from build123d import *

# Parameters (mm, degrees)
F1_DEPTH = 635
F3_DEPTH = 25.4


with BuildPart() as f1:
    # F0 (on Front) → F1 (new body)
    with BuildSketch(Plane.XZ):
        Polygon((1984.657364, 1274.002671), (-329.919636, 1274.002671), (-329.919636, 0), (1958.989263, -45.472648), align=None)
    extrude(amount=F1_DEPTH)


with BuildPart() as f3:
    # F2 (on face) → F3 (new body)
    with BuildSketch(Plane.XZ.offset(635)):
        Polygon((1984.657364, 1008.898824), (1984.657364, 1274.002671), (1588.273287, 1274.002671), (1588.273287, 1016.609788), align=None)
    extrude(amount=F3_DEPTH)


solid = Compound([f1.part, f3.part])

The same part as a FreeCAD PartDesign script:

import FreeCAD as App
import Part
import Sketcher
from FreeCAD import Vector
Q = App.Units.Quantity

doc = App.newDocument("Part")
body = doc.addObject("PartDesign::Body", "Body")

# Sketch on XZ plane
sketch1 = body.newObject("Sketcher::SketchObject", "Sketch")
sketch1.AttachmentSupport = (doc.getObject("XZ_Plane"), [""])
sketch1.MapMode = "FlatFace"
sketch1.addGeometry([
    Part.LineSegment(Vector(1984.657364, 1274.002671, 0), Vector(-329.919636, 1274.002671, 0)),
    Part.LineSegment(Vector(-329.919636, 1274.002671, 0), Vector(-329.919636, 0, 0)),
    Part.LineSegment(Vector(-329.919636, 0, 0), Vector(1958.989263, -45.472648, 0)),
    Part.LineSegment(Vector(1958.989263, -45.472648, 0), Vector(1984.657364, 1274.002671, 0)),
], False)
sketch1.addConstraint([
    Sketcher.Constraint("Coincident", 0, 2, 1, 1),
    Sketcher.Constraint("Coincident", 1, 2, 2, 1),
    Sketcher.Constraint("Coincident", 2, 2, 3, 1),
    Sketcher.Constraint("Coincident", 3, 2, 0, 1),
    Sketcher.Constraint("Horizontal", 0),
    Sketcher.Constraint("Vertical", 1),
    Sketcher.Constraint("PointOnObject", 1, 2, -1),
    Sketcher.Constraint("DistanceX", 0, 2, 0, 1, 2314.577),
    Sketcher.Constraint("DistanceY", 1, 2, 1, 1, 1274.002671),
    Sketcher.Constraint("DistanceX", 1, 2, 2, 2, 2288.908899),
    Sketcher.Constraint("Distance", 3, 1319.72496),
    Sketcher.Constraint("DistanceX", 0, 2, -1, 1, 329.919636),
])
pad1 = body.newObject("PartDesign::Pad", "Pad")
pad1.Profile = sketch1
pad1.Length = Q("25 in")
body2 = doc.addObject("PartDesign::Body", "Body001")

# Sketch on XZ plane
sketch2 = body2.newObject("Sketcher::SketchObject", "Sketch001")
sketch2.AttachmentSupport = (doc.getObject("XZ_Plane001"), [""])
sketch2.MapMode = "FlatFace"
sketch2.AttachmentOffset = App.Placement(Vector(0, 0, 25 * 25.4), App.Rotation())
sketch2.addGeometry([
    Part.LineSegment(Vector(1984.657364, 1008.898824, 0), Vector(1984.657364, 1274.002671, 0)),
    Part.LineSegment(Vector(1984.657364, 1274.002671, 0), Vector(1588.273287, 1274.002671, 0)),
    Part.LineSegment(Vector(1588.273287, 1274.002671, 0), Vector(1588.273287, 1016.609788, 0)),
    Part.LineSegment(Vector(1588.273287, 1016.609788, 0), Vector(1984.657364, 1008.898824, 0)),
], False)
sketch2.addConstraint([
    Sketcher.Constraint("Coincident", 0, 2, 1, 1),
    Sketcher.Constraint("Coincident", 1, 2, 2, 1),
    Sketcher.Constraint("Coincident", 2, 2, 3, 1),
    Sketcher.Constraint("Coincident", 3, 2, 0, 1),
    Sketcher.Constraint("Vertical", 0),
    Sketcher.Constraint("Horizontal", 1),
    Sketcher.Constraint("Vertical", 2),
    Sketcher.Constraint("Distance", 3, 396.459072),
    Sketcher.Constraint("DistanceX", 1, 2, 1, 1, 396.384077),
    Sketcher.Constraint("DistanceY", 0, 1, 0, 2, 265.103847),
    Sketcher.Constraint("DistanceY", -1, 1, 0, 2, 1274.002671),
    Sketcher.Constraint("DistanceX", -1, 1, 0, 2, 1984.657364),
])
pad2 = body2.newObject("PartDesign::Pad", "Pad001")
pad2.Profile = sketch2
pad2.Length = Q("1 in")

doc.recompute()
